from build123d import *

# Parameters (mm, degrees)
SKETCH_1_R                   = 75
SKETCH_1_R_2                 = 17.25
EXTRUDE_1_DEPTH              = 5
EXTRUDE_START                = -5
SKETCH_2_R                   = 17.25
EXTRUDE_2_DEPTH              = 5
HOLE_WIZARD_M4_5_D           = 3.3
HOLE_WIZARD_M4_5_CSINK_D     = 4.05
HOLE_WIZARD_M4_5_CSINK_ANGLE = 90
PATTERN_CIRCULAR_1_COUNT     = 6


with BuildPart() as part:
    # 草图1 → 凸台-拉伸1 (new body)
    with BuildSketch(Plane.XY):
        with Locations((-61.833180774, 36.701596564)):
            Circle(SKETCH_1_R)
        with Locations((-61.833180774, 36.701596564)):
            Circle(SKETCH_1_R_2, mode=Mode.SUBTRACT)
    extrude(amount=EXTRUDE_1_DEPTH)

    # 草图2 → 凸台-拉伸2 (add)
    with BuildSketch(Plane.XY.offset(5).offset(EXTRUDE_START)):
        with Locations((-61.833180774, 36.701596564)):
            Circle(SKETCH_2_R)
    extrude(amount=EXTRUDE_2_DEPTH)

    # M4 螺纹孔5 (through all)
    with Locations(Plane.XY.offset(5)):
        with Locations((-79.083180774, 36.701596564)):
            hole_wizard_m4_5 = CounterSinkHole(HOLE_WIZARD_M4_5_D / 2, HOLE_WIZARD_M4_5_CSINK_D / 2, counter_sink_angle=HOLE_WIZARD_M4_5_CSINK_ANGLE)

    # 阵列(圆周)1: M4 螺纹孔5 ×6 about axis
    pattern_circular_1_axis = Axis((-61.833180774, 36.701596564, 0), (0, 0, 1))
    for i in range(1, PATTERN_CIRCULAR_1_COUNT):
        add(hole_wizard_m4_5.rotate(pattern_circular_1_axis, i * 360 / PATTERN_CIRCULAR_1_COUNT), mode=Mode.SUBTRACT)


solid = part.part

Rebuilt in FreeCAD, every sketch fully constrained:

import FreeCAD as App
import Part
import Sketcher
from FreeCAD import Vector
Q = App.Units.Quantity

doc = App.newDocument("Part")
body = doc.addObject("PartDesign::Body", "Body")

# Sketch on XY plane
sketch1 = doc.addObject("Sketcher::SketchObject", "Sketch")
body.addObject(sketch1)
sketch1.AttachmentSupport = (doc.XY_Plane, [""])
sketch1.MapMode = "FlatFace"
sketch1.addGeometry(Part.Circle(Vector(-62, 37, 0), Vector(0, 0, 1), 75), False)
sketch1.addGeometry(Part.Circle(Vector(-62, 37, 0), Vector(0, 0, 1), 17), False)
sketch1.addConstraint(Sketcher.Constraint("Coincident", 1, 3, 0, 3))
sketch1.addConstraint(Sketcher.Constraint("Diameter", 0, Q("150 mm")))
sketch1.addConstraint(Sketcher.Constraint("Diameter", 1, Q("34.5 mm")))
sketch1.addConstraint(Sketcher.Constraint("DistanceX", 0, 3, -1, 1, Q("61.833181 mm")))
sketch1.addConstraint(Sketcher.Constraint("DistanceY", -1, 1, 0, 3, Q("36.701597 mm")))
pad1 = doc.addObject("PartDesign::Pad", "Pad")
body.addObject(pad1)
pad1.Profile = sketch1
pad1.Length = 5

# Sketch on XY plane
sketch2 = doc.addObject("Sketcher::SketchObject", "Sketch001")
body.addObject(sketch2)
sketch2.AttachmentSupport = (doc.XY_Plane, [""])
sketch2.MapMode = "FlatFace"
sketch2.addGeometry(Part.Circle(Vector(-62, 37, 0), Vector(0, 0, 1), 17), False)
sketch2.addConstraint(Sketcher.Constraint("Diameter", 0, Q("34.5 mm")))
sketch2.addConstraint(Sketcher.Constraint("DistanceX", 0, 3, -1, 1, Q("61.833181 mm")))
sketch2.addConstraint(Sketcher.Constraint("DistanceY", -1, 1, 0, 3, Q("36.701597 mm")))
pad2 = doc.addObject("PartDesign::Pad", "Pad001")
body.addObject(pad2)
pad2.Profile = sketch2
pad2.Length = 5

# Sketch on XY plane
sketch3 = doc.addObject("Sketcher::SketchObject", "Sketch002")
body.addObject(sketch3)
sketch3.AttachmentSupport = (doc.XY_Plane, [""])
sketch3.MapMode = "FlatFace"
sketch3.AttachmentOffset = App.Placement(Vector(0, 0, 5), App.Rotation())
sketch3.addGeometry(Part.Circle(Vector(-79.1, 36.7, 0), Vector(0, 0, 1), 1.6), False)
sketch3.addConstraint(Sketcher.Constraint("Diameter", 0, Q("3.3 mm")))
sketch3.addConstraint(Sketcher.Constraint("DistanceX", 0, 3, -1, 1, Q("79.083181 mm")))
sketch3.addConstraint(Sketcher.Constraint("DistanceY", -1, 1, 0, 3, Q("36.701597 mm")))
doc.recompute()
hole = doc.addObject("PartDesign::Hole", "Hole")
body.addObject(hole)
hole.Profile = sketch3
hole.ThreadType = "None"
hole.Diameter = 3.3
hole.DepthType = "ThroughAll"
hole.HoleCutType = "Countersink"
hole.HoleCutDiameter = 4.05
hole.HoleCutCountersinkAngle = 90
doc.recompute()

datumline = doc.addObject("PartDesign::Line", "DatumLine")
body.addObject(datumline)
datumline.Placement = App.Placement(Vector(-61.833181, 36.701597, 0), App.Rotation(Vector(0, 0, 1), Vector(0, 0, 1)))
polarpattern = doc.addObject("PartDesign::PolarPattern", "PolarPattern")
body.addObject(polarpattern)
polarpattern.Originals = [hole]
polarpattern.Axis = (datumline, [""])
polarpattern.Angle = 360
polarpattern.Occurrences = 6
body.Tip = polarpattern

doc.recompute()
